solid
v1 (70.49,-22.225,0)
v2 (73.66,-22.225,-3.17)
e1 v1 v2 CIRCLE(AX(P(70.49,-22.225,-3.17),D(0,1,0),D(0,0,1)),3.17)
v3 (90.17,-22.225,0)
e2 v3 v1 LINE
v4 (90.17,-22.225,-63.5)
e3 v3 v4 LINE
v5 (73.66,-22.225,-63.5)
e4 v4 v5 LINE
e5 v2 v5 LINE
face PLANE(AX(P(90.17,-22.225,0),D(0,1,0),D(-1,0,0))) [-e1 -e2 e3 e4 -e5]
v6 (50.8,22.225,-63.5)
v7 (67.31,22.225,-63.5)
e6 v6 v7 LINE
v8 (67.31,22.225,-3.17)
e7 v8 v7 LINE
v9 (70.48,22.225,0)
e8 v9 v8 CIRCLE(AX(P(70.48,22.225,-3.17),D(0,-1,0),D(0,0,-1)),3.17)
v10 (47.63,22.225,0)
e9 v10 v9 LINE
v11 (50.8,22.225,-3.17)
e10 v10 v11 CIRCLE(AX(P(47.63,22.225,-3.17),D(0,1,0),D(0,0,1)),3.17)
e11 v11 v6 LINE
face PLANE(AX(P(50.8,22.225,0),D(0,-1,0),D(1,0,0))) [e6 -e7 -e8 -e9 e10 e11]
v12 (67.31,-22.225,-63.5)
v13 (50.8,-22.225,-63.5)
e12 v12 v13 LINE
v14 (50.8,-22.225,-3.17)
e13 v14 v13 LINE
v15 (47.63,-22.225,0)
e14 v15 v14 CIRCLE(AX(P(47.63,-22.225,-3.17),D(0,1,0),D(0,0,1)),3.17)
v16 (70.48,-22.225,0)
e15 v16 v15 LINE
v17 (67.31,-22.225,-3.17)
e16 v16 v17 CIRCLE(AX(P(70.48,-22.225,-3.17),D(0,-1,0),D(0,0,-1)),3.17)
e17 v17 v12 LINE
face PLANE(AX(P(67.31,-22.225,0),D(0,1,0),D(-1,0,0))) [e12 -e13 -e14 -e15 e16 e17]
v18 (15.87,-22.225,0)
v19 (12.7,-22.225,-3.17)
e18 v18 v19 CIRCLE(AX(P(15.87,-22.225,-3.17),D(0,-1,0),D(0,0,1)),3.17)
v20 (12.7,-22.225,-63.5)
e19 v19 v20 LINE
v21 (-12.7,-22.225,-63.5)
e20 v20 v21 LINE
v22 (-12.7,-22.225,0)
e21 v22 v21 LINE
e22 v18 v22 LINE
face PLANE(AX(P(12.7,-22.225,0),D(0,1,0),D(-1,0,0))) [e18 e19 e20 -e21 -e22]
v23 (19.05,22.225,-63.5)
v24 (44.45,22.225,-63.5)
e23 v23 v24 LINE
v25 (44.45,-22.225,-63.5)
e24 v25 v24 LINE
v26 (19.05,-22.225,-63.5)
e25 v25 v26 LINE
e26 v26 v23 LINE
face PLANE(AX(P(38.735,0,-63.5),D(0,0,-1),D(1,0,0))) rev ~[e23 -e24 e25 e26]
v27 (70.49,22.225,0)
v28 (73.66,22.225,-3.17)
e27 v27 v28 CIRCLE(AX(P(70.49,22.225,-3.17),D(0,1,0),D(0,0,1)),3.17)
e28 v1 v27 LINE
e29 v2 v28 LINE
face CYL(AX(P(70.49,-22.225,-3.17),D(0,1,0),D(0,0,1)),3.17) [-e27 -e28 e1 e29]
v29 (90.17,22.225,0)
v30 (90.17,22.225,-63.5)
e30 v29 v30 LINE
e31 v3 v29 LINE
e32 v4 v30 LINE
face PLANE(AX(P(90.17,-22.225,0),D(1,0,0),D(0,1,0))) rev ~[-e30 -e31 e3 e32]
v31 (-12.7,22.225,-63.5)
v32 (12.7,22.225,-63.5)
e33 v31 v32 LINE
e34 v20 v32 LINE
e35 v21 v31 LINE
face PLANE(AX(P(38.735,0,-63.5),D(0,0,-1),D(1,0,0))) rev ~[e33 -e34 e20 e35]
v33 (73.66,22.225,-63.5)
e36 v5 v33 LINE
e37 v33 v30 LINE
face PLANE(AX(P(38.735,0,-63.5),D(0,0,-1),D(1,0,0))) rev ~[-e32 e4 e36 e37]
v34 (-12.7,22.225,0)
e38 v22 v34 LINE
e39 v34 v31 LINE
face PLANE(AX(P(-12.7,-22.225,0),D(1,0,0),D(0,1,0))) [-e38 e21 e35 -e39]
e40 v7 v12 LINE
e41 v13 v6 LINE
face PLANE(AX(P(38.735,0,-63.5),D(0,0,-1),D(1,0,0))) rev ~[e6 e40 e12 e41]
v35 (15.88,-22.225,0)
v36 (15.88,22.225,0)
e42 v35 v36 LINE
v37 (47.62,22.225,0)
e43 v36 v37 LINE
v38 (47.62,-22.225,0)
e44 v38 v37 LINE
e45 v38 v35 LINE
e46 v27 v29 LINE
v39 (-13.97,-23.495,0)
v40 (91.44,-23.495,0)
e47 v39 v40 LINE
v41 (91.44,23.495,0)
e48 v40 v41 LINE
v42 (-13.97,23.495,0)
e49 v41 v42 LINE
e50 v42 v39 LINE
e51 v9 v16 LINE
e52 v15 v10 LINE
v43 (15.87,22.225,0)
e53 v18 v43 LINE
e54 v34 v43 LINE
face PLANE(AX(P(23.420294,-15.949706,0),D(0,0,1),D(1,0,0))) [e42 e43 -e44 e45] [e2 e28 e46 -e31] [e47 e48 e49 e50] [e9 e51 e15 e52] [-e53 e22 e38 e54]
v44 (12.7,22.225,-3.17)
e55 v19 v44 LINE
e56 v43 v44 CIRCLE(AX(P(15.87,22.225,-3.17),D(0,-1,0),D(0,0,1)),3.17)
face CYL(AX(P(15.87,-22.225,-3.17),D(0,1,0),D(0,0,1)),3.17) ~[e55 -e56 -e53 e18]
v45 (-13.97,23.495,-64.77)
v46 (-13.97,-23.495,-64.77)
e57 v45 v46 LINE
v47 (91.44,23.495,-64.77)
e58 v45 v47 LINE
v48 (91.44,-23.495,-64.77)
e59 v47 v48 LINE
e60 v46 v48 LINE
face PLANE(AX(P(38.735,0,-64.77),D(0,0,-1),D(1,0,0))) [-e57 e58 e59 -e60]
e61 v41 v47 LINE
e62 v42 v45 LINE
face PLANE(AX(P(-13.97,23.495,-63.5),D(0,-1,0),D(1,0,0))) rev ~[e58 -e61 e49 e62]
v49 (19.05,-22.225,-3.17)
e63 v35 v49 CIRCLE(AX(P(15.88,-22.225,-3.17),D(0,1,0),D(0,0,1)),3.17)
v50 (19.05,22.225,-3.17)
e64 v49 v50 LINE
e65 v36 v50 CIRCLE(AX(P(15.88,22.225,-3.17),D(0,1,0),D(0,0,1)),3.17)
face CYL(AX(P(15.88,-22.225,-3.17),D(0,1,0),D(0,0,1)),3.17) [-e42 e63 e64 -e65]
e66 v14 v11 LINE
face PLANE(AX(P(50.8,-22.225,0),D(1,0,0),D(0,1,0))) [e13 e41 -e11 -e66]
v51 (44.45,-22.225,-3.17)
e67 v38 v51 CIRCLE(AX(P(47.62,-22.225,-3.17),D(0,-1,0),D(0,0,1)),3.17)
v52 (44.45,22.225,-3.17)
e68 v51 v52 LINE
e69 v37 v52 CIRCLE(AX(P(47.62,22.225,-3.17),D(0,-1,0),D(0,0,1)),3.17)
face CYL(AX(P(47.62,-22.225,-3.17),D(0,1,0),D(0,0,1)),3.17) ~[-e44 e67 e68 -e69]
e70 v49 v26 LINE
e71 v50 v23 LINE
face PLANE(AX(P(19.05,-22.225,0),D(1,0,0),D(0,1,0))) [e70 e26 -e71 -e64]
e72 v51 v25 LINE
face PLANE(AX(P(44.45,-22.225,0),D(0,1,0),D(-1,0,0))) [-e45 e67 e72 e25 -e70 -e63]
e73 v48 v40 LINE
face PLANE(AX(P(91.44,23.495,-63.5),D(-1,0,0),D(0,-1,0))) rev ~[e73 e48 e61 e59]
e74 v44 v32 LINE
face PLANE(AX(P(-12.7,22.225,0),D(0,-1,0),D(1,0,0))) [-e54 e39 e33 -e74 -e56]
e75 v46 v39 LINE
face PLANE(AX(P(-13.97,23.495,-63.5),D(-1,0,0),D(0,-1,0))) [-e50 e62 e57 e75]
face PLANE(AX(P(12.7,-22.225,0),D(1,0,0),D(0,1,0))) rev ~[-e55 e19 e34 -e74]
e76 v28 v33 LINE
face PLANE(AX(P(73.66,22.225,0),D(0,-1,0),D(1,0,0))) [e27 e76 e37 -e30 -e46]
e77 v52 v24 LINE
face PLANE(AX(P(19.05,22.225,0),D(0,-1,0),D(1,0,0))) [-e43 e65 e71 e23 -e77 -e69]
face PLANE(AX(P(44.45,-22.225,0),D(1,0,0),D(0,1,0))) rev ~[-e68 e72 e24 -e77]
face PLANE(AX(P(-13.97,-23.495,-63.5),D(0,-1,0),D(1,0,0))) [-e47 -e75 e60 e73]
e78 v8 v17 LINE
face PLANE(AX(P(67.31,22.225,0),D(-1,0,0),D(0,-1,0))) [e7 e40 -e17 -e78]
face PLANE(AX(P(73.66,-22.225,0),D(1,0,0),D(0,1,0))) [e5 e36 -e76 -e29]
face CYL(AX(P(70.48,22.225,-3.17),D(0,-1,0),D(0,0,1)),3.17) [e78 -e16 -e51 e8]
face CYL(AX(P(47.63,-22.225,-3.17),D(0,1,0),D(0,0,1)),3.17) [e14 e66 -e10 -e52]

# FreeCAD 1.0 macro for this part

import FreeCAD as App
import Part
import Sketcher
from FreeCAD import Vector
Q = App.Units.Quantity


def edges_at(feature, points):
    """Names of the edges that pass closest to the given points."""
    edges = feature.Shape.Edges
    near = lambda p: min(range(len(edges)), key=lambda i: edges[i].distToShape(Part.Vertex(*p))[0])
    return sorted({f"Edge{near(p) + 1}" for p in points})


def add_polygon(sketch, points):
    """Adds a closed chain of lines whose ends are joined by coincident constraints."""
    first, n = sketch.GeometryCount, len(points)
    for a, b in zip(points, points[1:] + points[:1]):
        sketch.addGeometry(Part.LineSegment(App.Vector(*a, 0), App.Vector(*b, 0)), False)
    for i in range(n):
        sketch.addConstraint(Sketcher.Constraint("Coincident", first + i, 2, first + (i + 1) % n, 1))

doc = App.newDocument("Part")
body = doc.addObject("PartDesign::Body", "Body")

# Sketch on XY plane
sketch1 = doc.addObject("Sketcher::SketchObject", "Sketch")
body.addObject(sketch1)
sketch1.AttachmentSupport = (doc.XY_Plane, [""])
sketch1.MapMode = "FlatFace"
add_polygon(sketch1, [(91.44, 23.495), (-13.97, 23.495), (-13.97, -23.495), (91.44, -23.495)])  # lines 0-3
add_polygon(sketch1, [(-12.7, -22.225), (-12.7, 22.225), (12.7, 22.225), (12.7, -22.225)])  # lines 4-7
add_polygon(sketch1, [(19.05, 22.225), (44.45, 22.225), (44.45, -22.225), (19.05, -22.225)])  # lines 8-11
add_polygon(sketch1, [(50.8, 22.225), (67.31, 22.225), (67.31, -22.225), (50.8, -22.225)])  # lines 12-15
add_polygon(sketch1, [(73.66, 22.225), (90.17, 22.225), (90.17, -22.225), (73.66, -22.225)])  # lines 16-19
sketch1.addConstraint(Sketcher.Constraint("Horizontal", 0))
sketch1.addConstraint(Sketcher.Constraint("Vertical", 1))
sketch1.addConstraint(Sketcher.Constraint("Horizontal", 2))
sketch1.addConstraint(Sketcher.Constraint("Vertical", 3))
sketch1.addConstraint(Sketcher.Constraint("Vertical", 4))
sketch1.addConstraint(Sketcher.Constraint("Horizontal", 5))
sketch1.addConstraint(Sketcher.Constraint("Vertical", 6))
sketch1.addConstraint(Sketcher.Constraint("Horizontal", 7))
sketch1.addConstraint(Sketcher.Constraint("Horizontal", 8))
sketch1.addConstraint(Sketcher.Constraint("Vertical", 9))
sketch1.addConstraint(Sketcher.Constraint("Horizontal", 10))
sketch1.addConstraint(Sketcher.Constraint("Vertical", 11))
sketch1.addConstraint(Sketcher.Constraint("Horizontal", 12))
sketch1.addConstraint(Sketcher.Constraint("Vertical", 13))
sketch1.addConstraint(Sketcher.Constraint("Horizontal", 14))
sketch1.addConstraint(Sketcher.Constraint("Vertical", 15))
sketch1.addConstraint(Sketcher.Constraint("Horizontal", 16))
sketch1.addConstraint(Sketcher.Constraint("Vertical", 17))
sketch1.addConstraint(Sketcher.Constraint("Horizontal", 18))
sketch1.addConstraint(Sketcher.Constraint("Vertical", 19))
sketch1.addConstraint(Sketcher.Constraint("Symmetric", 4, 2, 6, 2, -1, 1))
sketch1.addConstraint(Sketcher.Constraint("Horizontal", 5, 2, 8, 2))
sketch1.addConstraint(Sketcher.Constraint("Horizontal", 7, 2, 9, 2))
sketch1.addConstraint(Sketcher.Constraint("Horizontal", 11, 2, 12, 2))
sketch1.addConstraint(Sketcher.Constraint("Horizontal", 10, 2, 13, 2))
sketch1.addConstraint(Sketcher.Constraint("Horizontal", 15, 2, 16, 2))
sketch1.addConstraint(Sketcher.Constraint("Horizontal", 14, 2, 17, 2))
sketch1.addConstraint(Sketcher.Constraint("Equal", 7, 8))
sketch1.addConstraint(Sketcher.Constraint("Equal", 14, 16))
sketch1.addConstraint(Sketcher.Constraint("DistanceX", 5, 1, 5, 2, Q("1 in")))
sketch1.addConstraint(Sketcher.Constraint("DistanceX", -1, 1, 14, 2, Q("2 in")))
sketch1.addConstraint(Sketcher.Constraint("DistanceX", 0, 2, 0, 1, Q("4.15 in")))
sketch1.addConstraint(Sketcher.Constraint("DistanceX", 12, 1, 12, 2, Q("0.65 in")))
sketch1.addConstraint(Sketcher.Constraint("DistanceY", 1, 2, 1, 1, Q("1.85 in")))
sketch1.addConstraint(Sketcher.Constraint("DistanceY", 4, 1, 4, 2, Q("1.75 in")))
sketch1.addConstraint(Sketcher.Constraint("DistanceX", -1, 1, 2, 2, Q("3.6 in")))
sketch1.addConstraint(Sketcher.Constraint("DistanceX", -1, 1, 18, 2, Q("2.9 in")))
sketch1.addConstraint(Sketcher.Constraint("DistanceY", 1, 2, 4, 2, Q("1.8 in")))
sketch1.addConstraint(Sketcher.Constraint("DistanceX", 0, 2, 8, 2, Q("2.3 in")))
pad1 = doc.addObject("PartDesign::Pad", "Pad")
body.addObject(pad1)
pad1.Profile = sketch1
pad1.Length = Q("2.5 in")
pad1.Reversed = True

# Sketch on XY plane
sketch2 = doc.addObject("Sketcher::SketchObject", "Sketch001")
body.addObject(sketch2)
sketch2.AttachmentSupport = (doc.XY_Plane, [""])
sketch2.MapMode = "FlatFace"
sketch2.AttachmentOffset = App.Placement(Vector(0, 0, -2.5 * 25.4), App.Rotation())
add_polygon(sketch2, [(-13.97, -23.495), (-13.97, 23.495), (91.44, 23.495), (91.44, -23.495)])  # lines 0-3
sketch2.addConstraint(Sketcher.Constraint("Vertical", 0))
sketch2.addConstraint(Sketcher.Constraint("Horizontal", 1))
sketch2.addConstraint(Sketcher.Constraint("Vertical", 2))
sketch2.addConstraint(Sketcher.Constraint("Horizontal", 3))
sketch2.addConstraint(Sketcher.Constraint("DistanceX", 1, 1, 1, 2, Q("4.15 in")))
sketch2.addConstraint(Sketcher.Constraint("DistanceY", 0, 1, 0, 2, Q("1.85 in")))
sketch2.addConstraint(Sketcher.Constraint("DistanceX", -1, 1, 1, 2, Q("3.6 in")))
sketch2.addConstraint(Sketcher.Constraint("DistanceY", -1, 1, 0, 2, Q("0.925 in")))
pad2 = doc.addObject("PartDesign::Pad", "Pad001")
body.addObject(pad2)
pad2.Profile = sketch2
pad2.Length = Q("0.05 in")
pad2.Reversed = True
doc.recompute()

fillet = doc.addObject("PartDesign::Fillet", "Fillet")
body.addObject(fillet)
fillet.Base = (pad2, edges_at(pad2, [
    (19.05, 0, 0),
    (12.7, 0, 0),
    (44.45, 0, 0),
    (50.8, 0, 0),
    (67.31, 0, 0),
    (73.66, 0, 0),
]))
fillet.Radius = 3.17

doc.recompute()
